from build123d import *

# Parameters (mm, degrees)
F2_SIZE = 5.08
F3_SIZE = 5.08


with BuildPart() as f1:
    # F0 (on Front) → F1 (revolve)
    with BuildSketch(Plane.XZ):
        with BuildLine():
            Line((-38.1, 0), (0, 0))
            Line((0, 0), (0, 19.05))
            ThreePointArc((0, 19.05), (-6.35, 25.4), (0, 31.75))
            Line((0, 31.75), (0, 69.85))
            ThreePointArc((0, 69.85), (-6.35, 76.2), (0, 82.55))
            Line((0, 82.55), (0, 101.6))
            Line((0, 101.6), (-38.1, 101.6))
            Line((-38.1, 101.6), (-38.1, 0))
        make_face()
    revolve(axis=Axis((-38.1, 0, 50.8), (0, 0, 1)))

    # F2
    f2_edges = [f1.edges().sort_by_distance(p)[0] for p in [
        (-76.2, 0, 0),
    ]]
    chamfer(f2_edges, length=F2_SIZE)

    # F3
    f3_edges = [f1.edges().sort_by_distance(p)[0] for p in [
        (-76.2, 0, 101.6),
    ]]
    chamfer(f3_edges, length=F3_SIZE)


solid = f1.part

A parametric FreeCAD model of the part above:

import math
import FreeCAD as App
import Part
import Sketcher

V = App.Vector
Q = App.Units.Quantity


def edges_at(feature, points):
    """Names of the edges that pass closest to the given points."""
    edges = feature.Shape.Edges
    near = lambda p: min(range(len(edges)), key=lambda i: edges[i].distToShape(Part.Vertex(*p))[0])
    return sorted({f"Edge{near(p) + 1}" for p in points})

doc = App.newDocument("Part")
body = doc.addObject("PartDesign::Body", "Body")

# Sketch on XZ plane
sketch1 = doc.addObject("Sketcher::SketchObject", "Sketch")
body.addObject(sketch1)
sketch1.AttachmentSupport = (doc.XZ_Plane, [""])
sketch1.MapMode = "FlatFace"
sketch1.addGeometry(Part.LineSegment(V(-38, 0, 0), V(0, 0, 0)), False)
sketch1.addGeometry(Part.LineSegment(V(0, 0, 0), V(0, 19, 0)), False)
sketch1.addGeometry(Part.ArcOfCircle(Part.Circle(V(0, 25, 0), V(0, 0, 1), 6), math.radians(90), math.radians(270)), False)
sketch1.addGeometry(Part.LineSegment(V(0, 32, 0), V(0, 70, 0)), False)
sketch1.addGeometry(Part.ArcOfCircle(Part.Circle(V(0, 76, 0), V(0, 0, 1), 6), math.radians(90), math.radians(270)), False)
sketch1.addGeometry(Part.LineSegment(V(0, 83, 0), V(0, 102, 0)), False)
sketch1.addGeometry(Part.LineSegment(V(0, 102, 0), V(-38, 102, 0)), False)
sketch1.addGeometry(Part.LineSegment(V(-38, 102, 0), V(-38, 0, 0)), False)
sketch1.addGeometry(Part.LineSegment(V(-38, 0, 0), V(-38, 102, 0)), True)  # axis
sketch1.addConstraint(Sketcher.Constraint("Coincident", 0, 2, 1, 1))
sketch1.addConstraint(Sketcher.Constraint("Coincident", 1, 2, 2, 2))
sketch1.addConstraint(Sketcher.Constraint("Coincident", 2, 1, 3, 1))
sketch1.addConstraint(Sketcher.Constraint("Coincident", 3, 2, 4, 2))
sketch1.addConstraint(Sketcher.Constraint("Coincident", 4, 1, 5, 1))
sketch1.addConstraint(Sketcher.Constraint("Coincident", 5, 2, 6, 1))
sketch1.addConstraint(Sketcher.Constraint("Coincident", 6, 2, 7, 1))
sketch1.addConstraint(Sketcher.Constraint("Coincident", 7, 2, 0, 1))
sketch1.addConstraint(Sketcher.Constraint("Horizontal", 0))
sketch1.addConstraint(Sketcher.Constraint("Vertical", 1))
sketch1.addConstraint(Sketcher.Constraint("Vertical", 3))
sketch1.addConstraint(Sketcher.Constraint("Vertical", 5))
sketch1.addConstraint(Sketcher.Constraint("Horizontal", 6))
sketch1.addConstraint(Sketcher.Constraint("Vertical", 7))
sketch1.addConstraint(Sketcher.Constraint("Vertical", 8))
sketch1.addConstraint(Sketcher.Constraint("Coincident", 0, 2, -1, 1))
sketch1.addConstraint(Sketcher.Constraint("Coincident", 8, 1, 7, 2))
sketch1.addConstraint(Sketcher.Constraint("Equal", 2, 4))
sketch1.addConstraint(Sketcher.Constraint("PointOnObject", 2, 3, -2))
sketch1.addConstraint(Sketcher.Constraint("PointOnObject", 4, 3, -2))
sketch1.addConstraint(Sketcher.Constraint("PointOnObject", 2, 1, -2))
sketch1.addConstraint(Sketcher.Constraint("PointOnObject", 4, 1, -2))
sketch1.addConstraint(Sketcher.Constraint("Horizontal", 5, 2, 8, 2))
sketch1.addConstraint(Sketcher.Constraint("Equal", 6, 3))
sketch1.addConstraint(Sketcher.Constraint("Equal", 1, 5))
sketch1.addConstraint(Sketcher.Constraint("DistanceY", 7, 2, 7, 1, Q("4 in")))
sketch1.addConstraint(Sketcher.Constraint("Radius", 2, Q("0.25 in")))
sketch1.addConstraint(Sketcher.Constraint("DistanceX", 0, 1, 0, 2, Q("1.5 in")))
revolution = doc.addObject("PartDesign::Revolution", "Revolution")
body.addObject(revolution)
revolution.Profile = sketch1
revolution.ReferenceAxis = (sketch1, ["Axis0"])
revolution.Angle = 360
doc.recompute()

chamfer = doc.addObject("PartDesign::Chamfer", "Chamfer")
body.addObject(chamfer)
chamfer.Base = (revolution, edges_at(revolution, [(-76.2, 0, 0)]))
chamfer.Size = Q("0.2 in")
doc.recompute()

chamfer2 = doc.addObject("PartDesign::Chamfer", "Chamfer001")
body.addObject(chamfer2)
chamfer2.Base = (chamfer, edges_at(chamfer, [(-76.2, 0, 101.6)]))
chamfer2.Size = Q("0.2 in")

doc.recompute()
